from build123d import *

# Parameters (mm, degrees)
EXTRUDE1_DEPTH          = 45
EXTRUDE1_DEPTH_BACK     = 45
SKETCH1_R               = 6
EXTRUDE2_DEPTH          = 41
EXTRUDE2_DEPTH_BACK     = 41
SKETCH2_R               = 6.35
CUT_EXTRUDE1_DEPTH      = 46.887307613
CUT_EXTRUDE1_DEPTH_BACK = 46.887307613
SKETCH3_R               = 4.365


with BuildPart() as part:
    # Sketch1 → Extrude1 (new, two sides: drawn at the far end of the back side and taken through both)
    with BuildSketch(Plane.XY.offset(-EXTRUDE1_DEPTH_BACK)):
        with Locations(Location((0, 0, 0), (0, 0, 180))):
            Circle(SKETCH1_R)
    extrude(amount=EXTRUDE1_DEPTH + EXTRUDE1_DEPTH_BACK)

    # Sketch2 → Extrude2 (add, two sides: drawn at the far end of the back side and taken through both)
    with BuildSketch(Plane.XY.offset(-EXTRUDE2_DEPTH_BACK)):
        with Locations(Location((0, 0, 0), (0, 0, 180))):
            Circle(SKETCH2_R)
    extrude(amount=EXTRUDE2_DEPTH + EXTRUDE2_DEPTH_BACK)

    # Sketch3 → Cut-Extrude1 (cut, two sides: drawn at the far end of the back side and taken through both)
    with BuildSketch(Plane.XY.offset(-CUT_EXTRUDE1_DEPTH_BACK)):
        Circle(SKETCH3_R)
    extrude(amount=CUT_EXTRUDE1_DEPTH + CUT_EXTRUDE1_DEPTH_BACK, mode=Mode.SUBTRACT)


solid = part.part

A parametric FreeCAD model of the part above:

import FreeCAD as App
import Part
import Sketcher
from FreeCAD import Vector
Q = App.Units.Quantity

doc = App.newDocument("Part")
body = doc.addObject("PartDesign::Body", "Body")

# Sketch on XY plane
sketch1 = body.newObject("Sketcher::SketchObject", "Sketch")
sketch1.AttachmentSupport = (doc.getObject("XY_Plane"), [""])
sketch1.MapMode = "FlatFace"
sketch1.addGeometry(Part.Circle(Vector(0, 0, 0), Vector(0, 0, 1), 6), False)
sketch1.addConstraint(Sketcher.Constraint("Coincident", 0, 3, -1, 1))
sketch1.addConstraint(Sketcher.Constraint("Diameter", 0, Q("12 mm")))
pad1 = body.newObject("PartDesign::Pad", "Pad")
pad1.Profile = sketch1
pad1.Type = "TwoLengths"
pad1.Length = 45
pad1.Length2 = 45

# Sketch on XY plane
sketch2 = body.newObject("Sketcher::SketchObject", "Sketch001")
sketch2.AttachmentSupport = (doc.getObject("XY_Plane"), [""])
sketch2.MapMode = "FlatFace"
sketch2.addGeometry(Part.Circle(Vector(0, 0, 0), Vector(0, 0, 1), 6), False)
sketch2.addConstraint(Sketcher.Constraint("Coincident", 0, 3, -1, 1))
sketch2.addConstraint(Sketcher.Constraint("Diameter", 0, Q("12.7 mm")))
pad2 = body.newObject("PartDesign::Pad", "Pad001")
pad2.Profile = sketch2
pad2.Type = "TwoLengths"
pad2.Length = 41
pad2.Length2 = 41

# Sketch on XY plane
sketch3 = body.newObject("Sketcher::SketchObject", "Sketch002")
sketch3.AttachmentSupport = (doc.getObject("XY_Plane"), [""])
sketch3.MapMode = "FlatFace"
sketch3.addGeometry(Part.Circle(Vector(0, 0, 0), Vector(0, 0, 1), 4.4), False)
sketch3.addConstraint(Sketcher.Constraint("Coincident", 0, 3, -1, 1))
sketch3.addConstraint(Sketcher.Constraint("Diameter", 0, Q("8.73 mm")))
pocket1 = body.newObject("PartDesign::Pocket", "Pocket")
pocket1.Profile = sketch3
pocket1.Type = "ThroughAll"
pocket1.Midplane = True

doc.recompute()
